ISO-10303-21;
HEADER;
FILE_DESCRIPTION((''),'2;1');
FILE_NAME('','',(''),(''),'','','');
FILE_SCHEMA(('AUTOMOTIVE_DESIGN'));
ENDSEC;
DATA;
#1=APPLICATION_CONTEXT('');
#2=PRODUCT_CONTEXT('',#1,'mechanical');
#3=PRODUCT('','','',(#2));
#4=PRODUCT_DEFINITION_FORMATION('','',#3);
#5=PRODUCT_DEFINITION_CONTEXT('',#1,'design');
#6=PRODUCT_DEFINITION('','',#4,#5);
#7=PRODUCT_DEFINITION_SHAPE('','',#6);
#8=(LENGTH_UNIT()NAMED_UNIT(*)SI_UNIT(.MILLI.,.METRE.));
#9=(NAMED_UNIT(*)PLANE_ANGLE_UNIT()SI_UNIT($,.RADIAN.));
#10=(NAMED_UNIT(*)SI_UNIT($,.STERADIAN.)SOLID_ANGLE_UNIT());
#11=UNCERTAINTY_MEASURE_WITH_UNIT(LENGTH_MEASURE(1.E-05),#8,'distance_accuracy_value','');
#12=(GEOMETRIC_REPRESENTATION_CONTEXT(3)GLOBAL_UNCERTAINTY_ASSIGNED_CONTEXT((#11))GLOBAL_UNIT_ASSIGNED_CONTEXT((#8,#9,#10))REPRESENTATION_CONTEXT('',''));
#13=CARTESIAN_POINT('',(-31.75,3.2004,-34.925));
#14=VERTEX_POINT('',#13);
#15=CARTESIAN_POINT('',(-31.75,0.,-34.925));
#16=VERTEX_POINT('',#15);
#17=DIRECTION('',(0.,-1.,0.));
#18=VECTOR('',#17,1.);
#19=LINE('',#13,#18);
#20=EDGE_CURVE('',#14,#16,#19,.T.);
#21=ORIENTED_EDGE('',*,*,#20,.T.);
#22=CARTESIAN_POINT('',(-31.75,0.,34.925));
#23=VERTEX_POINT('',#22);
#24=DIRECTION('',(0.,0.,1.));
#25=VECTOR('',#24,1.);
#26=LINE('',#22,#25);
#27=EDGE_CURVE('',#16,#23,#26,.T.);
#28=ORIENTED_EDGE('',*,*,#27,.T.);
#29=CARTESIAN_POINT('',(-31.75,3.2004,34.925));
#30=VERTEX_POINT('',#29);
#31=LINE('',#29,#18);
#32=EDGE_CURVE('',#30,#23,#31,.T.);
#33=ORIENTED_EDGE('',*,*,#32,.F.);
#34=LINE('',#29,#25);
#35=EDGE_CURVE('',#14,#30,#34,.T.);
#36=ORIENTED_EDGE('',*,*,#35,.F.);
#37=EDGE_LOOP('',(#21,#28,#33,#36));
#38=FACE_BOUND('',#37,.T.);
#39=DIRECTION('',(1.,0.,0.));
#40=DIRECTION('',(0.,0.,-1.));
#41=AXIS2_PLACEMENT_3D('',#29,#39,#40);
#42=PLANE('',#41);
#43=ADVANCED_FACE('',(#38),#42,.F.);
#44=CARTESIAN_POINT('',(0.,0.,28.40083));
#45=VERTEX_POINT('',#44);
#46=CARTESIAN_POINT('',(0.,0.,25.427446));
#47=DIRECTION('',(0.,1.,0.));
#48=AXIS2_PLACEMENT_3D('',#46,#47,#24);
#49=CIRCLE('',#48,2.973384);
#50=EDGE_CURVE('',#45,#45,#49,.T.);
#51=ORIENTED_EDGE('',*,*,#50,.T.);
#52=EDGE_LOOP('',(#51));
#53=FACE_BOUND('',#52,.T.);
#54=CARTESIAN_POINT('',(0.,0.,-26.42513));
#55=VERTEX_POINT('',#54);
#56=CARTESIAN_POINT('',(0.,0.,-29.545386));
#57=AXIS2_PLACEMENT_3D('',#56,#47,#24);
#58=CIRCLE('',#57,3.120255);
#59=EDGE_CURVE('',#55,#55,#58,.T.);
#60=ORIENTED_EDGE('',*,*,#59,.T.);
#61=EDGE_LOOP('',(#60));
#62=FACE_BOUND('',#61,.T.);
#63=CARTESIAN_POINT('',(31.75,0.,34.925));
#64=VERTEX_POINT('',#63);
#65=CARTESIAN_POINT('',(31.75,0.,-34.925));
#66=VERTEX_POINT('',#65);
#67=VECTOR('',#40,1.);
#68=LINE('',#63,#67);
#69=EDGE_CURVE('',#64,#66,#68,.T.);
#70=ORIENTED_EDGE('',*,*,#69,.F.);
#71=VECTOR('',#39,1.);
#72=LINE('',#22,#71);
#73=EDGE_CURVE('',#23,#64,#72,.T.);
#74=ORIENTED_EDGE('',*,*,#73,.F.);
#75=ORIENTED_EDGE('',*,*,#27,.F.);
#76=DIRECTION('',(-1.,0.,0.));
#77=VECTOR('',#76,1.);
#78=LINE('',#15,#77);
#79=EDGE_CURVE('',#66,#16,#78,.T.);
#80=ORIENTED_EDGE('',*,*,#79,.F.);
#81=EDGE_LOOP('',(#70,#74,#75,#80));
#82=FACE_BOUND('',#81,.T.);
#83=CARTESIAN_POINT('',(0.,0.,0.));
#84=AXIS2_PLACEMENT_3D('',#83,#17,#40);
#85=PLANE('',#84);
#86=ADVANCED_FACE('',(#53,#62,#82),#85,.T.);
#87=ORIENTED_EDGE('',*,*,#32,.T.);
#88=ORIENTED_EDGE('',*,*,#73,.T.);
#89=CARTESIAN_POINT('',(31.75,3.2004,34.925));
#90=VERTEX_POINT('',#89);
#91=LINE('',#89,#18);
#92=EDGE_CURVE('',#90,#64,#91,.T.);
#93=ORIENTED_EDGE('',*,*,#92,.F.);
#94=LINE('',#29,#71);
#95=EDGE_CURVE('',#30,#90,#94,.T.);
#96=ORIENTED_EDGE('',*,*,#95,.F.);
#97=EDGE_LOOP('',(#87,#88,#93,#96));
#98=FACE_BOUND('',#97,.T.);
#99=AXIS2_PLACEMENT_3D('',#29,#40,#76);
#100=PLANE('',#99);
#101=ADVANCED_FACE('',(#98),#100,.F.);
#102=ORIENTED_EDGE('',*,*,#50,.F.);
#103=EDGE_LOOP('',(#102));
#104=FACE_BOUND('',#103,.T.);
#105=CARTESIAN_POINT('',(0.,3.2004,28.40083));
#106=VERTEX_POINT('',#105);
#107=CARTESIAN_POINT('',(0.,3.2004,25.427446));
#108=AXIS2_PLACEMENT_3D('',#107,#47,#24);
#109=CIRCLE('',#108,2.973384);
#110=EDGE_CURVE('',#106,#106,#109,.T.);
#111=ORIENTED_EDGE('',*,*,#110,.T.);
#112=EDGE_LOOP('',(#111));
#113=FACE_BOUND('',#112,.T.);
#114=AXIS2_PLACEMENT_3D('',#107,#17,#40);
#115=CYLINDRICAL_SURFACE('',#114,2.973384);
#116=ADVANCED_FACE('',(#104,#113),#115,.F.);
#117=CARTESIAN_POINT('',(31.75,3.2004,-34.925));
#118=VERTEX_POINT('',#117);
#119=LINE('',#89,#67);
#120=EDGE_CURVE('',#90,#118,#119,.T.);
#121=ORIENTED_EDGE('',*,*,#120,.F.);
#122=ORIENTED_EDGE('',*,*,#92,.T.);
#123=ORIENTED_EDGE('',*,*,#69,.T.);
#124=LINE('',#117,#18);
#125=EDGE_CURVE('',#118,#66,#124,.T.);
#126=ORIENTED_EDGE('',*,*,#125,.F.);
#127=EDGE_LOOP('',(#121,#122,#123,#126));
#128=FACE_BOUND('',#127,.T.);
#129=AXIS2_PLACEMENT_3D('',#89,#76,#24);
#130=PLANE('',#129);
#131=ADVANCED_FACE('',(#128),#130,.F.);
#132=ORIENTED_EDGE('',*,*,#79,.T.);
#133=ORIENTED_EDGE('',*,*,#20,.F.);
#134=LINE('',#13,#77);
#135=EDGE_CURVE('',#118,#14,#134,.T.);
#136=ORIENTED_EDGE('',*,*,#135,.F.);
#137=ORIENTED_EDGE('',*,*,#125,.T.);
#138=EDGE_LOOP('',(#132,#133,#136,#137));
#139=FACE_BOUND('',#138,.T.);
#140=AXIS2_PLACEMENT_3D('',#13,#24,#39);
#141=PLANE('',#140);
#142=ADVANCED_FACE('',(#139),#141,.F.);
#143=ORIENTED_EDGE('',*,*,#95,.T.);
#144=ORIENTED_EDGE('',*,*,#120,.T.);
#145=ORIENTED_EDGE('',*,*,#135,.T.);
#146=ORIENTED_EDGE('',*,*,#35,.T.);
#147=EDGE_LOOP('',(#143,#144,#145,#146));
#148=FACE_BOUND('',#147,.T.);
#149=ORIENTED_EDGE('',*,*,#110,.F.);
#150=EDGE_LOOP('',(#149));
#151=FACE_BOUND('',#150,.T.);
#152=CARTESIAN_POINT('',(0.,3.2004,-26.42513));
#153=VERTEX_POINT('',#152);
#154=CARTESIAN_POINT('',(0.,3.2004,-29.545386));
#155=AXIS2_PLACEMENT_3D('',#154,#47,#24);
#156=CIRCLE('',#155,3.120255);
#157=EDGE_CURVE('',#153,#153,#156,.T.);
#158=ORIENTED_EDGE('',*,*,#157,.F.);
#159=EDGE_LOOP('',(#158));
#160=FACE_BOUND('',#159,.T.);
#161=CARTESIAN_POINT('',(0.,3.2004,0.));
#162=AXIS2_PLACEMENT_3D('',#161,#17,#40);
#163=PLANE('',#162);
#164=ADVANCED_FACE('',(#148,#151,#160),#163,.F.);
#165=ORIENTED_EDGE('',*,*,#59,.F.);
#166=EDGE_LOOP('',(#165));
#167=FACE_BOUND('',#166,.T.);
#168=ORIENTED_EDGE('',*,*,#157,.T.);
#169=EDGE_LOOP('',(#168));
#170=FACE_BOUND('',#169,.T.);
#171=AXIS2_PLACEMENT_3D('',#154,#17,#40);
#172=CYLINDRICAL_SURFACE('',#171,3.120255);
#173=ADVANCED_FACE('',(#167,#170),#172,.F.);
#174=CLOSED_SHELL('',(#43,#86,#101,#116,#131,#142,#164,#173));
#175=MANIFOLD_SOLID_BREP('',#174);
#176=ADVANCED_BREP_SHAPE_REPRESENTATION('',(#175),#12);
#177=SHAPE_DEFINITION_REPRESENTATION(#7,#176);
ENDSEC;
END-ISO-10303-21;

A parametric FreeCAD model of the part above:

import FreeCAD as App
import Part
import Sketcher
from FreeCAD import Vector
Q = App.Units.Quantity


def add_polygon(sketch, points):
    """Adds a closed chain of lines whose ends are joined by coincident constraints."""
    first, n = sketch.GeometryCount, len(points)
    for a, b in zip(points, points[1:] + points[:1]):
        sketch.addGeometry(Part.LineSegment(App.Vector(*a, 0), App.Vector(*b, 0)), False)
    for i in range(n):
        sketch.addConstraint(Sketcher.Constraint("Coincident", first + i, 2, first + (i + 1) % n, 1))

doc = App.newDocument("Part")
body = doc.addObject("PartDesign::Body", "Body")

# Sketch on XZ plane
sketch1 = body.newObject("Sketcher::SketchObject", "Sketch")
sketch1.AttachmentSupport = (doc.getObject("XZ_Plane"), [""])
sketch1.MapMode = "FlatFace"
add_polygon(sketch1, [(-31.8, -34.9), (-31.8, 34.9), (31.8, 34.9), (31.8, -34.9)])  # lines 0-3
sketch1.addGeometry(Part.Circle(Vector(0, 25.4, 0), Vector(0, 0, 1), 3), False)  # 4
sketch1.addGeometry(Part.Circle(Vector(0, -29.5, 0), Vector(0, 0, 1), 3.1), False)  # 5
sketch1.addConstraint([
    Sketcher.Constraint("Vertical", 0),
    Sketcher.Constraint("Horizontal", 1),
    Sketcher.Constraint("Vertical", 2),
    Sketcher.Constraint("Horizontal", 3),
    Sketcher.Constraint("Symmetric", 0, 2, 2, 2, -1, 1),
    Sketcher.Constraint("PointOnObject", 4, 3, -2),
    Sketcher.Constraint("PointOnObject", 5, 3, -2),
    Sketcher.Constraint("DistanceX", 1, 1, 1, 2, Q("2.5 in")),
    Sketcher.Constraint("DistanceY", 0, 1, 0, 2, Q("2.75 in")),
    Sketcher.Constraint("Diameter", 4, Q("5.946768 mm")),
    Sketcher.Constraint("Diameter", 5, Q("6.24051 mm")),
    Sketcher.Constraint("DistanceY", 5, 3, 4, 3, Q("54.972832 mm")),
    Sketcher.Constraint("DistanceY", -1, 1, 4, 3, Q("25.427446 mm")),
])
pad1 = body.newObject("PartDesign::Pad", "Pad")
pad1.Profile = sketch1
pad1.Length = Q("0.126 in")
pad1.Reversed = True

doc.recompute()
